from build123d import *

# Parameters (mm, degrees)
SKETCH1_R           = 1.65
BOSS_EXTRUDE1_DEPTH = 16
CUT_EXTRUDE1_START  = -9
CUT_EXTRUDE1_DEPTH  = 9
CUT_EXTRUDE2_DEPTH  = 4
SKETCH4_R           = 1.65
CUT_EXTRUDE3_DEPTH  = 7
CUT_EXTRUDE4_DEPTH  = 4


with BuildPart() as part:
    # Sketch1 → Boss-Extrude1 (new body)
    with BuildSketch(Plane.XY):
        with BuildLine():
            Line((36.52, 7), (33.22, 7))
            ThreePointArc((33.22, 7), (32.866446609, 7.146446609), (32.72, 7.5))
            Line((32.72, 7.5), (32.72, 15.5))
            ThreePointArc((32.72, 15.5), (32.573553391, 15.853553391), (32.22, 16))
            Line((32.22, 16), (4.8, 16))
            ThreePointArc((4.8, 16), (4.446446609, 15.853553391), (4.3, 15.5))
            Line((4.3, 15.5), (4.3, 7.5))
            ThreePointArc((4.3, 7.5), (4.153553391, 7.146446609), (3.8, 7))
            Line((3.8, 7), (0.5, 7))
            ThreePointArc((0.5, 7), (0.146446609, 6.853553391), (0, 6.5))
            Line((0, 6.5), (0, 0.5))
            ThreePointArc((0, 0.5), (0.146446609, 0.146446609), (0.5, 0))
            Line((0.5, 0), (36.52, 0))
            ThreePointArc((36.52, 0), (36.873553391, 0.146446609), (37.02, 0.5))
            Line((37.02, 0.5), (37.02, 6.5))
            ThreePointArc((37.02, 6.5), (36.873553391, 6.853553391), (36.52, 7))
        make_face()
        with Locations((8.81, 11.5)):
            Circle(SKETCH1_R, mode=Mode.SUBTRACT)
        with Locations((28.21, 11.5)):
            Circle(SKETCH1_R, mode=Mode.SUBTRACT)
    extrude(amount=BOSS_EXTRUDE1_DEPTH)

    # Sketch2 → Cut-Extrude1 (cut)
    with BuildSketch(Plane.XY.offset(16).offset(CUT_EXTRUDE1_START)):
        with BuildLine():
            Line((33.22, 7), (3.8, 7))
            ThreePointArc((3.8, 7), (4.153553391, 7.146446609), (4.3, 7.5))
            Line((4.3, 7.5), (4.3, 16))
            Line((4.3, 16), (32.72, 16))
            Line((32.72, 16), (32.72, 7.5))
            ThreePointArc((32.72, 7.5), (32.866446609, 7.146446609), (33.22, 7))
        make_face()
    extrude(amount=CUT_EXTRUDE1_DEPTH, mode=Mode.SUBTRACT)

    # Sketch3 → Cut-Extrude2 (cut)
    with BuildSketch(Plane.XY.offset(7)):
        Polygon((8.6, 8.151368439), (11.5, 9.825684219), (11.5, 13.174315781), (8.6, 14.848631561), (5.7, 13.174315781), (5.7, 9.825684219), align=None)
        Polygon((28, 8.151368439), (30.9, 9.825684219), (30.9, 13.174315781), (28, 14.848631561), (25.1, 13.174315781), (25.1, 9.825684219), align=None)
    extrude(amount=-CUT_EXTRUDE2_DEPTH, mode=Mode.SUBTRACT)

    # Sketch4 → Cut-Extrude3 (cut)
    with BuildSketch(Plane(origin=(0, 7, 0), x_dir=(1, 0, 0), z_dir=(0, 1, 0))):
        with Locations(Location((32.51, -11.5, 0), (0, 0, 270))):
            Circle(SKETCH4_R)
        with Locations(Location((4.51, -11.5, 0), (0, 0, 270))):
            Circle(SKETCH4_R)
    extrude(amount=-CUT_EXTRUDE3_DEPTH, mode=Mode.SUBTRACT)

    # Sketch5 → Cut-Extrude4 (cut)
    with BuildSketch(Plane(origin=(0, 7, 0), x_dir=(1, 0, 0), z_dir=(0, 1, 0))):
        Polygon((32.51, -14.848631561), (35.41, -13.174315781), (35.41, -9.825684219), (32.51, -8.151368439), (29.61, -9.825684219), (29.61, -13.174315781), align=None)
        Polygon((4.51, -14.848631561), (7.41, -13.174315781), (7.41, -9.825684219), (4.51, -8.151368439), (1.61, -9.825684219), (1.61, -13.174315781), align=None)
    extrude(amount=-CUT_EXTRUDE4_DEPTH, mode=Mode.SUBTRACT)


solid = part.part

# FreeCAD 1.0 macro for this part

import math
import FreeCAD as App
import Part
import Sketcher

V = App.Vector
Q = App.Units.Quantity

doc = App.newDocument("Part")
body = doc.addObject("PartDesign::Body", "Body")

# Sketch on XY plane
sketch1 = body.newObject("Sketcher::SketchObject", "Sketch")
sketch1.AttachmentSupport = (doc.getObject("XY_Plane"), [""])
sketch1.MapMode = "FlatFace"
sketch1.addGeometry(Part.LineSegment(V(36.52, 7, 0), V(33.22, 7, 0)), False)
sketch1.addGeometry(Part.ArcOfCircle(Part.Circle(V(33.22, 7.5, 0), V(0, 0, 1), 0.5), math.radians(180), math.radians(270)), False)
sketch1.addGeometry(Part.LineSegment(V(32.72, 7.5, 0), V(32.72, 15.5, 0)), False)
sketch1.addGeometry(Part.ArcOfCircle(Part.Circle(V(32.22, 15.5, 0), V(0, 0, 1), 0.5), math.radians(0), math.radians(90)), False)
sketch1.addGeometry(Part.LineSegment(V(32.22, 16, 0), V(4.8, 16, 0)), False)
sketch1.addGeometry(Part.ArcOfCircle(Part.Circle(V(4.8, 15.5, 0), V(0, 0, 1), 0.5), math.radians(90), math.radians(180)), False)
sketch1.addGeometry(Part.LineSegment(V(4.3, 15.5, 0), V(4.3, 7.5, 0)), False)
sketch1.addGeometry(Part.ArcOfCircle(Part.Circle(V(3.8, 7.5, 0), V(0, 0, 1), 0.5), math.radians(-90), math.radians(0)), False)
sketch1.addGeometry(Part.LineSegment(V(3.8, 7, 0), V(0.5, 7, 0)), False)
sketch1.addGeometry(Part.ArcOfCircle(Part.Circle(V(0.5, 6.5, 0), V(0, 0, 1), 0.5), math.radians(90), math.radians(180)), False)
sketch1.addGeometry(Part.LineSegment(V(0, 6.5, 0), V(0, 0.5, 0)), False)
sketch1.addGeometry(Part.ArcOfCircle(Part.Circle(V(0.5, 0.5, 0), V(0, 0, 1), 0.5), math.radians(180), math.radians(270)), False)
sketch1.addGeometry(Part.LineSegment(V(0.5, 0, 0), V(36.52, 0, 0)), False)
sketch1.addGeometry(Part.ArcOfCircle(Part.Circle(V(36.52, 0.5, 0), V(0, 0, 1), 0.5), math.radians(-90), math.radians(0)), False)
sketch1.addGeometry(Part.LineSegment(V(37.02, 0.5, 0), V(37.02, 6.5, 0)), False)
sketch1.addGeometry(Part.ArcOfCircle(Part.Circle(V(36.52, 6.5, 0), V(0, 0, 1), 0.5), math.radians(0), math.radians(90)), False)
sketch1.addGeometry(Part.Circle(V(8.81, 11.5, 0), V(0, 0, 1), 1.65), False)
sketch1.addGeometry(Part.Circle(V(28.21, 11.5, 0), V(0, 0, 1), 1.65), False)
sketch1.addConstraint(Sketcher.Constraint("Tangent", 0, 2, 1, 2))
sketch1.addConstraint(Sketcher.Constraint("Tangent", 1, 1, 2, 1))
sketch1.addConstraint(Sketcher.Constraint("Tangent", 2, 2, 3, 1))
sketch1.addConstraint(Sketcher.Constraint("Tangent", 3, 2, 4, 1))
sketch1.addConstraint(Sketcher.Constraint("Tangent", 4, 2, 5, 1))
sketch1.addConstraint(Sketcher.Constraint("Tangent", 5, 2, 6, 1))
sketch1.addConstraint(Sketcher.Constraint("Tangent", 6, 2, 7, 2))
sketch1.addConstraint(Sketcher.Constraint("Tangent", 7, 1, 8, 1))
sketch1.addConstraint(Sketcher.Constraint("Tangent", 8, 2, 9, 1))
sketch1.addConstraint(Sketcher.Constraint("Tangent", 9, 2, 10, 1))
sketch1.addConstraint(Sketcher.Constraint("Tangent", 10, 2, 11, 1))
sketch1.addConstraint(Sketcher.Constraint("Tangent", 11, 2, 12, 1))
sketch1.addConstraint(Sketcher.Constraint("Tangent", 12, 2, 13, 1))
sketch1.addConstraint(Sketcher.Constraint("Tangent", 13, 2, 14, 1))
sketch1.addConstraint(Sketcher.Constraint("Tangent", 14, 2, 15, 1))
sketch1.addConstraint(Sketcher.Constraint("Tangent", 15, 2, 0, 1))
sketch1.addConstraint(Sketcher.Constraint("Horizontal", 0))
sketch1.addConstraint(Sketcher.Constraint("Vertical", 2))
sketch1.addConstraint(Sketcher.Constraint("Horizontal", 4))
sketch1.addConstraint(Sketcher.Constraint("Vertical", 6))
sketch1.addConstraint(Sketcher.Constraint("Horizontal", 8))
sketch1.addConstraint(Sketcher.Constraint("Vertical", 10))
sketch1.addConstraint(Sketcher.Constraint("Horizontal", 12))
sketch1.addConstraint(Sketcher.Constraint("Vertical", 14))
sketch1.addConstraint(Sketcher.Constraint("Equal", 1, 3))
sketch1.addConstraint(Sketcher.Constraint("Equal", 3, 5))
sketch1.addConstraint(Sketcher.Constraint("Equal", 5, 7))
sketch1.addConstraint(Sketcher.Constraint("Equal", 7, 9))
sketch1.addConstraint(Sketcher.Constraint("Equal", 9, 11))
sketch1.addConstraint(Sketcher.Constraint("Equal", 11, 13))
sketch1.addConstraint(Sketcher.Constraint("Equal", 13, 15))
sketch1.addConstraint(Sketcher.Constraint("Equal", 16, 17))
sketch1.addConstraint(Sketcher.Constraint("PointOnObject", 9, 2, -2))
sketch1.addConstraint(Sketcher.Constraint("PointOnObject", 11, 2, -1))
sketch1.addConstraint(Sketcher.Constraint("Horizontal", 1, 3, 7, 3))
sketch1.addConstraint(Sketcher.Constraint("Horizontal", 16, 3, 17, 3))
sketch1.addConstraint(Sketcher.Constraint("Equal", 0, 8))
sketch1.addConstraint(Sketcher.Constraint("Diameter", 16, 3.3))
sketch1.addConstraint(Sketcher.Constraint("Radius", 1, 0.5))
sketch1.addConstraint(Sketcher.Constraint("DistanceY", 2, 1, 2, 2, 8.0))
sketch1.addConstraint(Sketcher.Constraint("DistanceY", 10, 2, 10, 1, 6.0))
sketch1.addConstraint(Sketcher.Constraint("DistanceX", 0, 2, 0, 1, 3.3))
sketch1.addConstraint(Sketcher.Constraint("DistanceY", 16, 3, 5, 3, 4.0))
sketch1.addConstraint(Sketcher.Constraint("DistanceX", 4, 2, 4, 1, 27.42))
sketch1.addConstraint(Sketcher.Constraint("DistanceX", 16, 3, 17, 3, 19.4))
sketch1.addConstraint(Sketcher.Constraint("DistanceX", -1, 1, 16, 3, 8.81))
pad1 = body.newObject("PartDesign::Pad", "Pad")
pad1.Profile = sketch1
pad1.Length = 16

# Sketch on XY plane
sketch2 = body.newObject("Sketcher::SketchObject", "Sketch001")
sketch2.AttachmentSupport = (doc.getObject("XY_Plane"), [""])
sketch2.MapMode = "FlatFace"
sketch2.AttachmentOffset = App.Placement(V(0, 0, 7), App.Rotation())
sketch2.addGeometry(Part.LineSegment(V(3.8, 7, 0), V(33.22, 7, 0)), False)
sketch2.addGeometry(Part.ArcOfCircle(Part.Circle(V(33.22, 7.5, 0), V(0, 0, 1), 0.5), math.radians(180), math.radians(270)), False)
sketch2.addGeometry(Part.LineSegment(V(32.72, 7.5, 0), V(32.72, 16, 0)), False)
sketch2.addGeometry(Part.LineSegment(V(32.72, 16, 0), V(4.3, 16, 0)), False)
sketch2.addGeometry(Part.LineSegment(V(4.3, 16, 0), V(4.3, 7.5, 0)), False)
sketch2.addGeometry(Part.ArcOfCircle(Part.Circle(V(3.8, 7.5, 0), V(0, 0, 1), 0.5), math.radians(-90), math.radians(0)), False)
sketch2.addConstraint(Sketcher.Constraint("Tangent", 0, 2, 1, 2))
sketch2.addConstraint(Sketcher.Constraint("Tangent", 1, 1, 2, 1))
sketch2.addConstraint(Sketcher.Constraint("Coincident", 2, 2, 3, 1))
sketch2.addConstraint(Sketcher.Constraint("Coincident", 3, 2, 4, 1))
sketch2.addConstraint(Sketcher.Constraint("Tangent", 4, 2, 5, 2))
sketch2.addConstraint(Sketcher.Constraint("Tangent", 5, 1, 0, 1))
sketch2.addConstraint(Sketcher.Constraint("Horizontal", 0))
sketch2.addConstraint(Sketcher.Constraint("Vertical", 2))
sketch2.addConstraint(Sketcher.Constraint("Horizontal", 3))
sketch2.addConstraint(Sketcher.Constraint("Vertical", 4))
sketch2.addConstraint(Sketcher.Constraint("Equal", 1, 5))
sketch2.addConstraint(Sketcher.Constraint("Radius", 1, 0.5))
sketch2.addConstraint(Sketcher.Constraint("DistanceY", 2, 1, 2, 2, 8.5))
sketch2.addConstraint(Sketcher.Constraint("DistanceY", -1, 1, 0, 2, 7.0))
sketch2.addConstraint(Sketcher.Constraint("DistanceX", 0, 1, 0, 2, 29.42))
sketch2.addConstraint(Sketcher.Constraint("DistanceX", -1, 1, 5, 3, 3.8))
pocket1 = body.newObject("PartDesign::Pocket", "Pocket")
pocket1.Profile = sketch2
pocket1.Length = 9
pocket1.Reversed = True

# Sketch on XY plane
sketch3 = body.newObject("Sketcher::SketchObject", "Sketch002")
sketch3.AttachmentSupport = (doc.getObject("XY_Plane"), [""])
sketch3.MapMode = "FlatFace"
sketch3.AttachmentOffset = App.Placement(V(0, 0, 7), App.Rotation())
sketch3.addGeometry(Part.LineSegment(V(8.6, 8.2, 0), V(11.5, 9.8, 0)), False)
sketch3.addGeometry(Part.LineSegment(V(11.5, 9.8, 0), V(11.5, 13.2, 0)), False)
sketch3.addGeometry(Part.LineSegment(V(11.5, 13.2, 0), V(8.6, 14.8, 0)), False)
sketch3.addGeometry(Part.LineSegment(V(8.6, 14.8, 0), V(5.7, 13.2, 0)), False)
sketch3.addGeometry(Part.LineSegment(V(5.7, 13.2, 0), V(5.7, 9.8, 0)), False)
sketch3.addGeometry(Part.LineSegment(V(5.7, 9.8, 0), V(8.6, 8.2, 0)), False)
sketch3.addGeometry(Part.LineSegment(V(28, 8.2, 0), V(30.9, 9.8, 0)), False)
sketch3.addGeometry(Part.LineSegment(V(30.9, 9.8, 0), V(30.9, 13.2, 0)), False)
sketch3.addGeometry(Part.LineSegment(V(30.9, 13.2, 0), V(28, 14.8, 0)), False)
sketch3.addGeometry(Part.LineSegment(V(28, 14.8, 0), V(25.1, 13.2, 0)), False)
sketch3.addGeometry(Part.LineSegment(V(25.1, 13.2, 0), V(25.1, 9.8, 0)), False)
sketch3.addGeometry(Part.LineSegment(V(25.1, 9.8, 0), V(28, 8.2, 0)), False)
sketch3.addConstraint(Sketcher.Constraint("Coincident", 0, 2, 1, 1))
sketch3.addConstraint(Sketcher.Constraint("Coincident", 1, 2, 2, 1))
sketch3.addConstraint(Sketcher.Constraint("Coincident", 2, 2, 3, 1))
sketch3.addConstraint(Sketcher.Constraint("Coincident", 3, 2, 4, 1))
sketch3.addConstraint(Sketcher.Constraint("Coincident", 4, 2, 5, 1))
sketch3.addConstraint(Sketcher.Constraint("Coincident", 5, 2, 0, 1))
sketch3.addConstraint(Sketcher.Constraint("Coincident", 6, 2, 7, 1))
sketch3.addConstraint(Sketcher.Constraint("Coincident", 7, 2, 8, 1))
sketch3.addConstraint(Sketcher.Constraint("Coincident", 8, 2, 9, 1))
sketch3.addConstraint(Sketcher.Constraint("Coincident", 9, 2, 10, 1))
sketch3.addConstraint(Sketcher.Constraint("Coincident", 10, 2, 11, 1))
sketch3.addConstraint(Sketcher.Constraint("Coincident", 11, 2, 6, 1))
sketch3.addConstraint(Sketcher.Constraint("Vertical", 1))
sketch3.addConstraint(Sketcher.Constraint("Vertical", 4))
sketch3.addConstraint(Sketcher.Constraint("Vertical", 7))
sketch3.addConstraint(Sketcher.Constraint("Vertical", 10))
sketch3.addConstraint(Sketcher.Constraint("Parallel", 0, 3))
sketch3.addConstraint(Sketcher.Constraint("Parallel", 2, 5))
sketch3.addConstraint(Sketcher.Constraint("Parallel", 3, 6))
sketch3.addConstraint(Sketcher.Constraint("Parallel", 5, 8))
sketch3.addConstraint(Sketcher.Constraint("Parallel", 6, 9))
sketch3.addConstraint(Sketcher.Constraint("Parallel", 8, 11))
sketch3.addConstraint(Sketcher.Constraint("Horizontal", 1, 2, 3, 2))
sketch3.addConstraint(Sketcher.Constraint("Horizontal", 0, 2, 4, 2))
sketch3.addConstraint(Sketcher.Constraint("Horizontal", 4, 2, 6, 2))
sketch3.addConstraint(Sketcher.Constraint("Horizontal", 3, 2, 7, 2))
sketch3.addConstraint(Sketcher.Constraint("Horizontal", 2, 2, 8, 2))
sketch3.addConstraint(Sketcher.Constraint("Horizontal", 7, 2, 9, 2))
sketch3.addConstraint(Sketcher.Constraint("Horizontal", 6, 2, 10, 2))
sketch3.addConstraint(Sketcher.Constraint("Vertical", 2, 2, 5, 2))
sketch3.addConstraint(Sketcher.Constraint("Angle", 0, Q("30 deg")))
sketch3.addConstraint(Sketcher.Constraint("DistanceX", -1, 1, 8, 2, 28.0))
sketch3.addConstraint(Sketcher.Constraint("DistanceX", -1, 1, 0, 2, 11.5))
sketch3.addConstraint(Sketcher.Constraint("DistanceX", -1, 1, 2, 2, 8.6))
sketch3.addConstraint(Sketcher.Constraint("DistanceY", 1, 1, 1, 2, 3.348632))
sketch3.addConstraint(Sketcher.Constraint("DistanceY", -1, 1, 2, 2, 14.848632))
pocket2 = body.newObject("PartDesign::Pocket", "Pocket001")
pocket2.Profile = sketch3
pocket2.Length = 4

# Sketch on XZ plane
sketch4 = body.newObject("Sketcher::SketchObject", "Sketch003")
sketch4.AttachmentSupport = (doc.getObject("XZ_Plane"), [""])
sketch4.MapMode = "FlatFace"
sketch4.AttachmentOffset = App.Placement(V(0, 0, -7), App.Rotation())
sketch4.addGeometry(Part.Circle(V(32.5, 11.5, 0), V(0, 0, 1), 1.6), False)
sketch4.addGeometry(Part.Circle(V(4.5, 11.5, 0), V(0, 0, 1), 1.6), False)
sketch4.addConstraint(Sketcher.Constraint("Equal", 0, 1))
sketch4.addConstraint(Sketcher.Constraint("Horizontal", 0, 3, 1, 3))
sketch4.addConstraint(Sketcher.Constraint("Diameter", 0, 3.3))
sketch4.addConstraint(Sketcher.Constraint("DistanceX", 1, 3, 0, 3, 28.0))
sketch4.addConstraint(Sketcher.Constraint("DistanceY", -1, 1, 0, 3, 11.5))
sketch4.addConstraint(Sketcher.Constraint("DistanceX", -1, 1, 0, 3, 32.51))
pocket3 = body.newObject("PartDesign::Pocket", "Pocket002")
pocket3.Profile = sketch4
pocket3.Length = 7
pocket3.Reversed = True

# Sketch on XZ plane
sketch5 = body.newObject("Sketcher::SketchObject", "Sketch004")
sketch5.AttachmentSupport = (doc.getObject("XZ_Plane"), [""])
sketch5.MapMode = "FlatFace"
sketch5.AttachmentOffset = App.Placement(V(0, 0, -7), App.Rotation())
sketch5.addGeometry(Part.LineSegment(V(32.5, 14.8, 0), V(35.4, 13.2, 0)), False)
sketch5.addGeometry(Part.LineSegment(V(35.4, 13.2, 0), V(35.4, 9.8, 0)), False)
sketch5.addGeometry(Part.LineSegment(V(35.4, 9.8, 0), V(32.5, 8.2, 0)), False)
sketch5.addGeometry(Part.LineSegment(V(32.5, 8.2, 0), V(29.6, 9.8, 0)), False)
sketch5.addGeometry(Part.LineSegment(V(29.6, 9.8, 0), V(29.6, 13.2, 0)), False)
sketch5.addGeometry(Part.LineSegment(V(29.6, 13.2, 0), V(32.5, 14.8, 0)), False)
sketch5.addGeometry(Part.LineSegment(V(4.5, 14.8, 0), V(7.4, 13.2, 0)), False)
sketch5.addGeometry(Part.LineSegment(V(7.4, 13.2, 0), V(7.4, 9.8, 0)), False)
sketch5.addGeometry(Part.LineSegment(V(7.4, 9.8, 0), V(4.5, 8.2, 0)), False)
sketch5.addGeometry(Part.LineSegment(V(4.5, 8.2, 0), V(1.6, 9.8, 0)), False)
sketch5.addGeometry(Part.LineSegment(V(1.6, 9.8, 0), V(1.6, 13.2, 0)), False)
sketch5.addGeometry(Part.LineSegment(V(1.6, 13.2, 0), V(4.5, 14.8, 0)), False)
sketch5.addConstraint(Sketcher.Constraint("Coincident", 0, 2, 1, 1))
sketch5.addConstraint(Sketcher.Constraint("Coincident", 1, 2, 2, 1))
sketch5.addConstraint(Sketcher.Constraint("Coincident", 2, 2, 3, 1))
sketch5.addConstraint(Sketcher.Constraint("Coincident", 3, 2, 4, 1))
sketch5.addConstraint(Sketcher.Constraint("Coincident", 4, 2, 5, 1))
sketch5.addConstraint(Sketcher.Constraint("Coincident", 5, 2, 0, 1))
sketch5.addConstraint(Sketcher.Constraint("Coincident", 6, 2, 7, 1))
sketch5.addConstraint(Sketcher.Constraint("Coincident", 7, 2, 8, 1))
sketch5.addConstraint(Sketcher.Constraint("Coincident", 8, 2, 9, 1))
sketch5.addConstraint(Sketcher.Constraint("Coincident", 9, 2, 10, 1))
sketch5.addConstraint(Sketcher.Constraint("Coincident", 10, 2, 11, 1))
sketch5.addConstraint(Sketcher.Constraint("Coincident", 11, 2, 6, 1))
sketch5.addConstraint(Sketcher.Constraint("Vertical", 1))
sketch5.addConstraint(Sketcher.Constraint("Vertical", 4))
sketch5.addConstraint(Sketcher.Constraint("Vertical", 7))
sketch5.addConstraint(Sketcher.Constraint("Vertical", 10))
sketch5.addConstraint(Sketcher.Constraint("Parallel", 0, 3))
sketch5.addConstraint(Sketcher.Constraint("Parallel", 2, 5))
sketch5.addConstraint(Sketcher.Constraint("Parallel", 3, 6))
sketch5.addConstraint(Sketcher.Constraint("Parallel", 5, 8))
sketch5.addConstraint(Sketcher.Constraint("Parallel", 6, 9))
sketch5.addConstraint(Sketcher.Constraint("Parallel", 8, 11))
sketch5.addConstraint(Sketcher.Constraint("Horizontal", 1, 2, 3, 2))
sketch5.addConstraint(Sketcher.Constraint("Horizontal", 0, 2, 4, 2))
sketch5.addConstraint(Sketcher.Constraint("Horizontal", 4, 2, 6, 2))
sketch5.addConstraint(Sketcher.Constraint("Horizontal", 3, 2, 7, 2))
sketch5.addConstraint(Sketcher.Constraint("Horizontal", 2, 2, 8, 2))
sketch5.addConstraint(Sketcher.Constraint("Horizontal", 7, 2, 9, 2))
sketch5.addConstraint(Sketcher.Constraint("Horizontal", 6, 2, 10, 2))
sketch5.addConstraint(Sketcher.Constraint("Vertical", 2, 2, 5, 2))
sketch5.addConstraint(Sketcher.Constraint("Angle", 0, Q("-30 deg")))
sketch5.addConstraint(Sketcher.Constraint("DistanceX", 6, 2, 0, 2, 28.0))
sketch5.addConstraint(Sketcher.Constraint("DistanceX", 2, 2, 1, 2, 2.9))
sketch5.addConstraint(Sketcher.Constraint("DistanceX", -1, 1, 0, 2, 35.41))
sketch5.addConstraint(Sketcher.Constraint("DistanceY", 1, 2, 1, 1, 3.348632))
sketch5.addConstraint(Sketcher.Constraint("DistanceY", -1, 1, 2, 2, 8.151368))
pocket4 = body.newObject("PartDesign::Pocket", "Pocket003")
pocket4.Profile = sketch5
pocket4.Length = 4
pocket4.Reversed = True

doc.recompute()
